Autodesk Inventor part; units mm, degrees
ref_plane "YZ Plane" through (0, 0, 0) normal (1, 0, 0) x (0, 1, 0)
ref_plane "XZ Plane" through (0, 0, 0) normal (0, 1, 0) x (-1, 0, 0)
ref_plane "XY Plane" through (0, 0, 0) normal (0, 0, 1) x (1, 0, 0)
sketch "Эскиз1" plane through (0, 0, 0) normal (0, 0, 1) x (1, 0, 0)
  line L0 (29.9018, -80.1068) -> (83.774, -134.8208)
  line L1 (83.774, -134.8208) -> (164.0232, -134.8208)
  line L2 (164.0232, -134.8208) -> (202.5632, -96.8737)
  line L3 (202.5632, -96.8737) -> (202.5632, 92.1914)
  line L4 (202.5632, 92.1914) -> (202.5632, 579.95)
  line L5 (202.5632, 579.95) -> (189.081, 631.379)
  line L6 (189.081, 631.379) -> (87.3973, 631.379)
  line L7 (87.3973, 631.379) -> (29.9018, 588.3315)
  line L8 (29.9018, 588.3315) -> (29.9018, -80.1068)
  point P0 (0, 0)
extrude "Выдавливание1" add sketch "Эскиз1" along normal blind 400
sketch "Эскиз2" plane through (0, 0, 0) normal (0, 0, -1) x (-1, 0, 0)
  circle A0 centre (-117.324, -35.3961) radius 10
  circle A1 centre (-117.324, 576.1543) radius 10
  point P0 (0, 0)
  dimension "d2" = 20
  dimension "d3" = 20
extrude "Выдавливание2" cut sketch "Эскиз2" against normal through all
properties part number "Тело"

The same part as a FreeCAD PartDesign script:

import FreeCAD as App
import Part
import Sketcher

V = App.Vector
Q = App.Units.Quantity

doc = App.newDocument("Part")
body = doc.addObject("PartDesign::Body", "Body")

# Sketch on XY plane
sketch1 = doc.addObject("Sketcher::SketchObject", "Sketch")
body.addObject(sketch1)
sketch1.AttachmentSupport = (doc.XY_Plane, [""])
sketch1.MapMode = "FlatFace"
sketch1.addGeometry(Part.LineSegment(V(30, 588, 0), V(30, -80, 0)), False)
sketch1.addGeometry(Part.LineSegment(V(30, -80, 0), V(84, -135, 0)), False)
sketch1.addGeometry(Part.LineSegment(V(84, -135, 0), V(164, -135, 0)), False)
sketch1.addGeometry(Part.LineSegment(V(164, -135, 0), V(203, -97, 0)), False)
sketch1.addGeometry(Part.LineSegment(V(203, -97, 0), V(203, 580, 0)), False)
sketch1.addGeometry(Part.LineSegment(V(203, 580, 0), V(189, 631, 0)), False)
sketch1.addGeometry(Part.LineSegment(V(189, 631, 0), V(87, 631, 0)), False)
sketch1.addGeometry(Part.LineSegment(V(87, 631, 0), V(30, 588, 0)), False)
sketch1.addConstraint(Sketcher.Constraint("Coincident", 0, 2, 1, 1))
sketch1.addConstraint(Sketcher.Constraint("Coincident", 1, 2, 2, 1))
sketch1.addConstraint(Sketcher.Constraint("Coincident", 2, 2, 3, 1))
sketch1.addConstraint(Sketcher.Constraint("Coincident", 3, 2, 4, 1))
sketch1.addConstraint(Sketcher.Constraint("Coincident", 4, 2, 5, 1))
sketch1.addConstraint(Sketcher.Constraint("Coincident", 5, 2, 6, 1))
sketch1.addConstraint(Sketcher.Constraint("Coincident", 6, 2, 7, 1))
sketch1.addConstraint(Sketcher.Constraint("Coincident", 7, 2, 0, 1))
sketch1.addConstraint(Sketcher.Constraint("Vertical", 0))
sketch1.addConstraint(Sketcher.Constraint("Horizontal", 2))
sketch1.addConstraint(Sketcher.Constraint("Vertical", 4))
sketch1.addConstraint(Sketcher.Constraint("Horizontal", 6))
sketch1.addConstraint(Sketcher.Constraint("Perpendicular", 1, 3))
sketch1.addConstraint(Sketcher.Constraint("Angle", 5, Q("104.6896 deg")))
sketch1.addConstraint(Sketcher.Constraint("DistanceY", -1, 1, 4, 2, Q("579.95 mm")))
sketch1.addConstraint(Sketcher.Constraint("DistanceX", 2, 2, 3, 2, Q("38.54 mm")))
sketch1.addConstraint(Sketcher.Constraint("Distance", 7, Q("71.825 mm")))
sketch1.addConstraint(Sketcher.Constraint("DistanceX", 2, 1, 2, 2, Q("80.2492 mm")))
sketch1.addConstraint(Sketcher.Constraint("DistanceX", 6, 2, 6, 1, Q("101.6837 mm")))
sketch1.addConstraint(Sketcher.Constraint("DistanceY", 0, 2, 0, 1, Q("668.4383 mm")))
sketch1.addConstraint(Sketcher.Constraint("DistanceY", 4, 1, 4, 2, Q("676.8237 mm")))
sketch1.addConstraint(Sketcher.Constraint("DistanceX", -1, 1, 1, 2, Q("83.774 mm")))
sketch1.addConstraint(Sketcher.Constraint("DistanceX", -1, 1, 5, 2, Q("189.081 mm")))
sketch1.addConstraint(Sketcher.Constraint("DistanceY", 1, 2, 0, 2, Q("54.714 mm")))
pad1 = doc.addObject("PartDesign::Pad", "Pad")
body.addObject(pad1)
pad1.Profile = sketch1
pad1.Length = 400

# Sketch on XY plane
sketch2 = doc.addObject("Sketcher::SketchObject", "Sketch001")
body.addObject(sketch2)
sketch2.AttachmentSupport = (doc.XY_Plane, [""])
sketch2.MapMode = "FlatFace"
sketch2.addGeometry(Part.Circle(V(117, -35, 0), V(0, 0, 1), 10), False)
sketch2.addGeometry(Part.Circle(V(117, 576, 0), V(0, 0, 1), 10), False)
sketch2.addConstraint(Sketcher.Constraint("Equal", 0, 1))
sketch2.addConstraint(Sketcher.Constraint("Vertical", 0, 3, 1, 3))
sketch2.addConstraint(Sketcher.Constraint("Diameter", 0, Q("20 mm")))
sketch2.addConstraint(Sketcher.Constraint("DistanceX", -1, 1, 0, 3, Q("117.324 mm")))
sketch2.addConstraint(Sketcher.Constraint("DistanceY", 0, 3, -1, 1, Q("35.396 mm")))
sketch2.addConstraint(Sketcher.Constraint("DistanceY", -1, 1, 1, 3, Q("576.1543 mm")))
pocket1 = doc.addObject("PartDesign::Pocket", "Pocket")
body.addObject(pocket1)
pocket1.Profile = sketch2
pocket1.Type = "ThroughAll"
pocket1.Reversed = True

doc.recompute()
